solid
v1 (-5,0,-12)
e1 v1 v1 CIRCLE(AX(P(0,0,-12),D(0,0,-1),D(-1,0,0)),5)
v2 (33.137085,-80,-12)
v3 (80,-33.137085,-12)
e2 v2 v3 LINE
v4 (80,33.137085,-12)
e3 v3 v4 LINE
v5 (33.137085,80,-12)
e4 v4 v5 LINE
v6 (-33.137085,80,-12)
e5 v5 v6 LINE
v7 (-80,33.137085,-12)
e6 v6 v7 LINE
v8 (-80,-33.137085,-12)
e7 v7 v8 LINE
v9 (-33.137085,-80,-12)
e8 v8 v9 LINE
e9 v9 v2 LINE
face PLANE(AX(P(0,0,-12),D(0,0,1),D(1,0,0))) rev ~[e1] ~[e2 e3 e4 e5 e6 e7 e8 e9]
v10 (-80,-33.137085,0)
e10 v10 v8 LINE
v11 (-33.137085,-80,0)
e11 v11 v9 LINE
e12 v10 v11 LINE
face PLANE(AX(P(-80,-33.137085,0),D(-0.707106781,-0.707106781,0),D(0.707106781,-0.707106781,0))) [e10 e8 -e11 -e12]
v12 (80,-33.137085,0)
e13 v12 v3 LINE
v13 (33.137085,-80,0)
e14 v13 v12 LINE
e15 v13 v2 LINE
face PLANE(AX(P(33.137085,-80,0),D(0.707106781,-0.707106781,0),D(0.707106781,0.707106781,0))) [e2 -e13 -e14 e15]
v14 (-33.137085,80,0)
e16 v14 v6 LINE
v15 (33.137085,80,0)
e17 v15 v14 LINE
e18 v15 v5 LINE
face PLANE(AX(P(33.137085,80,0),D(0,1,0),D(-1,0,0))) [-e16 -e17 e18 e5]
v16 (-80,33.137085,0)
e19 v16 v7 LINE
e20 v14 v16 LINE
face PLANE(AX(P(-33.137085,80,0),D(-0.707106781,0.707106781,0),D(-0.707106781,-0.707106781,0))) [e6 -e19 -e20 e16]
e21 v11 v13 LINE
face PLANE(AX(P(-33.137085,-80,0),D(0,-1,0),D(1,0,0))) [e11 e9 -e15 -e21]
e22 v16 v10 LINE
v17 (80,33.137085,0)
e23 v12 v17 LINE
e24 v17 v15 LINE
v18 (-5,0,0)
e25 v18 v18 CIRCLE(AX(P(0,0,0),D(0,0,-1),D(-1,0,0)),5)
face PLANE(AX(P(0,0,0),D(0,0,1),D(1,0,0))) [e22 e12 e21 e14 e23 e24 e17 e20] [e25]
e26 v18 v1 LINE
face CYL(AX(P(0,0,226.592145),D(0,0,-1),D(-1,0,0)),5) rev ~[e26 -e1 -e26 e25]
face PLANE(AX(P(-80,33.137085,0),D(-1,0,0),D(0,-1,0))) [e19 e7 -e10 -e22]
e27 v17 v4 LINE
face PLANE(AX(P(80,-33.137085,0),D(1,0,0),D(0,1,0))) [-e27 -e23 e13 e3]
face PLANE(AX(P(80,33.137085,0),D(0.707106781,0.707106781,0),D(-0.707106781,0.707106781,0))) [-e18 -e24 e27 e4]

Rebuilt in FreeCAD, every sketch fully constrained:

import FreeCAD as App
import Part
import Sketcher
from FreeCAD import Vector
Q = App.Units.Quantity

doc = App.newDocument("Part")
body = doc.addObject("PartDesign::Body", "Body")

sketch1 = body.newObject("Sketcher::SketchObject", "Sketch")
sketch1.AttachmentSupport = (doc.getObject("XY_Plane"), [""])
sketch1.MapMode = "FlatFace"
sketch1.addGeometry(Part.LineSegment(Vector(33.137085, 80, 0), Vector(-33.137085, 80, 0)), False)
sketch1.addGeometry(Part.LineSegment(Vector(-33.137085, 80, 0), Vector(-80, 33.137085, 0)), False)
sketch1.addGeometry(Part.LineSegment(Vector(-80, 33.137085, 0), Vector(-80, -33.137085, 0)), False)
sketch1.addGeometry(Part.LineSegment(Vector(-80, -33.137085, 0), Vector(-33.137085, -80, 0)), False)
sketch1.addGeometry(Part.LineSegment(Vector(-33.137085, -80, 0), Vector(33.137085, -80, 0)), False)
sketch1.addGeometry(Part.LineSegment(Vector(33.137085, -80, 0), Vector(80, -33.137085, 0)), False)
sketch1.addGeometry(Part.LineSegment(Vector(80, -33.137085, 0), Vector(80, 33.137085, 0)), False)
sketch1.addGeometry(Part.LineSegment(Vector(80, 33.137085, 0), Vector(33.137085, 80, 0)), False)
sketch1.addConstraint(Sketcher.Constraint("Coincident", 0, 2, 1, 1))
sketch1.addConstraint(Sketcher.Constraint("Coincident", 1, 2, 2, 1))
sketch1.addConstraint(Sketcher.Constraint("Coincident", 2, 2, 3, 1))
sketch1.addConstraint(Sketcher.Constraint("Coincident", 3, 2, 4, 1))
sketch1.addConstraint(Sketcher.Constraint("Coincident", 4, 2, 5, 1))
sketch1.addConstraint(Sketcher.Constraint("Coincident", 5, 2, 6, 1))
sketch1.addConstraint(Sketcher.Constraint("Coincident", 6, 2, 7, 1))
sketch1.addConstraint(Sketcher.Constraint("Coincident", 7, 2, 0, 1))
sketch1.addConstraint(Sketcher.Constraint("Horizontal", 0))
sketch1.addConstraint(Sketcher.Constraint("Vertical", 2))
sketch1.addConstraint(Sketcher.Constraint("Horizontal", 4))
sketch1.addConstraint(Sketcher.Constraint("Vertical", 6))
sketch1.addConstraint(Sketcher.Constraint("Symmetric", 0, 2, 4, 2, -1, 1))
sketch1.addConstraint(Sketcher.Constraint("Symmetric", 1, 2, 5, 2, -1, 1))
sketch1.addConstraint(Sketcher.Constraint("Perpendicular", 1, 3))
sketch1.addConstraint(Sketcher.Constraint("Perpendicular", 5, 7))
sketch1.addConstraint(Sketcher.Constraint("Horizontal", 2, 2, 5, 2))
sketch1.addConstraint(Sketcher.Constraint("Horizontal", 1, 2, 6, 2))
sketch1.addConstraint(Sketcher.Constraint("Vertical", 0, 2, 3, 2))
sketch1.addConstraint(Sketcher.Constraint("Equal", 4, 2))
sketch1.addConstraint(Sketcher.Constraint("DistanceY", -1, 1, 0, 2, Q("80 mm")))
sketch1.addConstraint(Sketcher.Constraint("DistanceX", 0, 2, 0, 1, Q("66.27417 mm")))
pad1 = body.newObject("PartDesign::Pad", "Pad")
pad1.Profile = sketch1
pad1.Length = 12
pad1.Reversed = True

sketch2 = body.newObject("Sketcher::SketchObject", "Sketch001")
sketch2.AttachmentSupport = (doc.getObject("XY_Plane"), [""])
sketch2.MapMode = "FlatFace"
sketch2.addGeometry(Part.Circle(Vector(0, 0, 0), Vector(0, 0, 1), 5), False)
sketch2.addConstraint(Sketcher.Constraint("Coincident", 0, 3, -1, 1))
sketch2.addConstraint(Sketcher.Constraint("Diameter", 0, Q("10 mm")))
doc.recompute()
hole = body.newObject("PartDesign::Hole", "Hole")
hole.Profile = sketch2
hole.ThreadType = "None"
hole.Diameter = 10
hole.DepthType = "ThroughAll"

doc.recompute()
